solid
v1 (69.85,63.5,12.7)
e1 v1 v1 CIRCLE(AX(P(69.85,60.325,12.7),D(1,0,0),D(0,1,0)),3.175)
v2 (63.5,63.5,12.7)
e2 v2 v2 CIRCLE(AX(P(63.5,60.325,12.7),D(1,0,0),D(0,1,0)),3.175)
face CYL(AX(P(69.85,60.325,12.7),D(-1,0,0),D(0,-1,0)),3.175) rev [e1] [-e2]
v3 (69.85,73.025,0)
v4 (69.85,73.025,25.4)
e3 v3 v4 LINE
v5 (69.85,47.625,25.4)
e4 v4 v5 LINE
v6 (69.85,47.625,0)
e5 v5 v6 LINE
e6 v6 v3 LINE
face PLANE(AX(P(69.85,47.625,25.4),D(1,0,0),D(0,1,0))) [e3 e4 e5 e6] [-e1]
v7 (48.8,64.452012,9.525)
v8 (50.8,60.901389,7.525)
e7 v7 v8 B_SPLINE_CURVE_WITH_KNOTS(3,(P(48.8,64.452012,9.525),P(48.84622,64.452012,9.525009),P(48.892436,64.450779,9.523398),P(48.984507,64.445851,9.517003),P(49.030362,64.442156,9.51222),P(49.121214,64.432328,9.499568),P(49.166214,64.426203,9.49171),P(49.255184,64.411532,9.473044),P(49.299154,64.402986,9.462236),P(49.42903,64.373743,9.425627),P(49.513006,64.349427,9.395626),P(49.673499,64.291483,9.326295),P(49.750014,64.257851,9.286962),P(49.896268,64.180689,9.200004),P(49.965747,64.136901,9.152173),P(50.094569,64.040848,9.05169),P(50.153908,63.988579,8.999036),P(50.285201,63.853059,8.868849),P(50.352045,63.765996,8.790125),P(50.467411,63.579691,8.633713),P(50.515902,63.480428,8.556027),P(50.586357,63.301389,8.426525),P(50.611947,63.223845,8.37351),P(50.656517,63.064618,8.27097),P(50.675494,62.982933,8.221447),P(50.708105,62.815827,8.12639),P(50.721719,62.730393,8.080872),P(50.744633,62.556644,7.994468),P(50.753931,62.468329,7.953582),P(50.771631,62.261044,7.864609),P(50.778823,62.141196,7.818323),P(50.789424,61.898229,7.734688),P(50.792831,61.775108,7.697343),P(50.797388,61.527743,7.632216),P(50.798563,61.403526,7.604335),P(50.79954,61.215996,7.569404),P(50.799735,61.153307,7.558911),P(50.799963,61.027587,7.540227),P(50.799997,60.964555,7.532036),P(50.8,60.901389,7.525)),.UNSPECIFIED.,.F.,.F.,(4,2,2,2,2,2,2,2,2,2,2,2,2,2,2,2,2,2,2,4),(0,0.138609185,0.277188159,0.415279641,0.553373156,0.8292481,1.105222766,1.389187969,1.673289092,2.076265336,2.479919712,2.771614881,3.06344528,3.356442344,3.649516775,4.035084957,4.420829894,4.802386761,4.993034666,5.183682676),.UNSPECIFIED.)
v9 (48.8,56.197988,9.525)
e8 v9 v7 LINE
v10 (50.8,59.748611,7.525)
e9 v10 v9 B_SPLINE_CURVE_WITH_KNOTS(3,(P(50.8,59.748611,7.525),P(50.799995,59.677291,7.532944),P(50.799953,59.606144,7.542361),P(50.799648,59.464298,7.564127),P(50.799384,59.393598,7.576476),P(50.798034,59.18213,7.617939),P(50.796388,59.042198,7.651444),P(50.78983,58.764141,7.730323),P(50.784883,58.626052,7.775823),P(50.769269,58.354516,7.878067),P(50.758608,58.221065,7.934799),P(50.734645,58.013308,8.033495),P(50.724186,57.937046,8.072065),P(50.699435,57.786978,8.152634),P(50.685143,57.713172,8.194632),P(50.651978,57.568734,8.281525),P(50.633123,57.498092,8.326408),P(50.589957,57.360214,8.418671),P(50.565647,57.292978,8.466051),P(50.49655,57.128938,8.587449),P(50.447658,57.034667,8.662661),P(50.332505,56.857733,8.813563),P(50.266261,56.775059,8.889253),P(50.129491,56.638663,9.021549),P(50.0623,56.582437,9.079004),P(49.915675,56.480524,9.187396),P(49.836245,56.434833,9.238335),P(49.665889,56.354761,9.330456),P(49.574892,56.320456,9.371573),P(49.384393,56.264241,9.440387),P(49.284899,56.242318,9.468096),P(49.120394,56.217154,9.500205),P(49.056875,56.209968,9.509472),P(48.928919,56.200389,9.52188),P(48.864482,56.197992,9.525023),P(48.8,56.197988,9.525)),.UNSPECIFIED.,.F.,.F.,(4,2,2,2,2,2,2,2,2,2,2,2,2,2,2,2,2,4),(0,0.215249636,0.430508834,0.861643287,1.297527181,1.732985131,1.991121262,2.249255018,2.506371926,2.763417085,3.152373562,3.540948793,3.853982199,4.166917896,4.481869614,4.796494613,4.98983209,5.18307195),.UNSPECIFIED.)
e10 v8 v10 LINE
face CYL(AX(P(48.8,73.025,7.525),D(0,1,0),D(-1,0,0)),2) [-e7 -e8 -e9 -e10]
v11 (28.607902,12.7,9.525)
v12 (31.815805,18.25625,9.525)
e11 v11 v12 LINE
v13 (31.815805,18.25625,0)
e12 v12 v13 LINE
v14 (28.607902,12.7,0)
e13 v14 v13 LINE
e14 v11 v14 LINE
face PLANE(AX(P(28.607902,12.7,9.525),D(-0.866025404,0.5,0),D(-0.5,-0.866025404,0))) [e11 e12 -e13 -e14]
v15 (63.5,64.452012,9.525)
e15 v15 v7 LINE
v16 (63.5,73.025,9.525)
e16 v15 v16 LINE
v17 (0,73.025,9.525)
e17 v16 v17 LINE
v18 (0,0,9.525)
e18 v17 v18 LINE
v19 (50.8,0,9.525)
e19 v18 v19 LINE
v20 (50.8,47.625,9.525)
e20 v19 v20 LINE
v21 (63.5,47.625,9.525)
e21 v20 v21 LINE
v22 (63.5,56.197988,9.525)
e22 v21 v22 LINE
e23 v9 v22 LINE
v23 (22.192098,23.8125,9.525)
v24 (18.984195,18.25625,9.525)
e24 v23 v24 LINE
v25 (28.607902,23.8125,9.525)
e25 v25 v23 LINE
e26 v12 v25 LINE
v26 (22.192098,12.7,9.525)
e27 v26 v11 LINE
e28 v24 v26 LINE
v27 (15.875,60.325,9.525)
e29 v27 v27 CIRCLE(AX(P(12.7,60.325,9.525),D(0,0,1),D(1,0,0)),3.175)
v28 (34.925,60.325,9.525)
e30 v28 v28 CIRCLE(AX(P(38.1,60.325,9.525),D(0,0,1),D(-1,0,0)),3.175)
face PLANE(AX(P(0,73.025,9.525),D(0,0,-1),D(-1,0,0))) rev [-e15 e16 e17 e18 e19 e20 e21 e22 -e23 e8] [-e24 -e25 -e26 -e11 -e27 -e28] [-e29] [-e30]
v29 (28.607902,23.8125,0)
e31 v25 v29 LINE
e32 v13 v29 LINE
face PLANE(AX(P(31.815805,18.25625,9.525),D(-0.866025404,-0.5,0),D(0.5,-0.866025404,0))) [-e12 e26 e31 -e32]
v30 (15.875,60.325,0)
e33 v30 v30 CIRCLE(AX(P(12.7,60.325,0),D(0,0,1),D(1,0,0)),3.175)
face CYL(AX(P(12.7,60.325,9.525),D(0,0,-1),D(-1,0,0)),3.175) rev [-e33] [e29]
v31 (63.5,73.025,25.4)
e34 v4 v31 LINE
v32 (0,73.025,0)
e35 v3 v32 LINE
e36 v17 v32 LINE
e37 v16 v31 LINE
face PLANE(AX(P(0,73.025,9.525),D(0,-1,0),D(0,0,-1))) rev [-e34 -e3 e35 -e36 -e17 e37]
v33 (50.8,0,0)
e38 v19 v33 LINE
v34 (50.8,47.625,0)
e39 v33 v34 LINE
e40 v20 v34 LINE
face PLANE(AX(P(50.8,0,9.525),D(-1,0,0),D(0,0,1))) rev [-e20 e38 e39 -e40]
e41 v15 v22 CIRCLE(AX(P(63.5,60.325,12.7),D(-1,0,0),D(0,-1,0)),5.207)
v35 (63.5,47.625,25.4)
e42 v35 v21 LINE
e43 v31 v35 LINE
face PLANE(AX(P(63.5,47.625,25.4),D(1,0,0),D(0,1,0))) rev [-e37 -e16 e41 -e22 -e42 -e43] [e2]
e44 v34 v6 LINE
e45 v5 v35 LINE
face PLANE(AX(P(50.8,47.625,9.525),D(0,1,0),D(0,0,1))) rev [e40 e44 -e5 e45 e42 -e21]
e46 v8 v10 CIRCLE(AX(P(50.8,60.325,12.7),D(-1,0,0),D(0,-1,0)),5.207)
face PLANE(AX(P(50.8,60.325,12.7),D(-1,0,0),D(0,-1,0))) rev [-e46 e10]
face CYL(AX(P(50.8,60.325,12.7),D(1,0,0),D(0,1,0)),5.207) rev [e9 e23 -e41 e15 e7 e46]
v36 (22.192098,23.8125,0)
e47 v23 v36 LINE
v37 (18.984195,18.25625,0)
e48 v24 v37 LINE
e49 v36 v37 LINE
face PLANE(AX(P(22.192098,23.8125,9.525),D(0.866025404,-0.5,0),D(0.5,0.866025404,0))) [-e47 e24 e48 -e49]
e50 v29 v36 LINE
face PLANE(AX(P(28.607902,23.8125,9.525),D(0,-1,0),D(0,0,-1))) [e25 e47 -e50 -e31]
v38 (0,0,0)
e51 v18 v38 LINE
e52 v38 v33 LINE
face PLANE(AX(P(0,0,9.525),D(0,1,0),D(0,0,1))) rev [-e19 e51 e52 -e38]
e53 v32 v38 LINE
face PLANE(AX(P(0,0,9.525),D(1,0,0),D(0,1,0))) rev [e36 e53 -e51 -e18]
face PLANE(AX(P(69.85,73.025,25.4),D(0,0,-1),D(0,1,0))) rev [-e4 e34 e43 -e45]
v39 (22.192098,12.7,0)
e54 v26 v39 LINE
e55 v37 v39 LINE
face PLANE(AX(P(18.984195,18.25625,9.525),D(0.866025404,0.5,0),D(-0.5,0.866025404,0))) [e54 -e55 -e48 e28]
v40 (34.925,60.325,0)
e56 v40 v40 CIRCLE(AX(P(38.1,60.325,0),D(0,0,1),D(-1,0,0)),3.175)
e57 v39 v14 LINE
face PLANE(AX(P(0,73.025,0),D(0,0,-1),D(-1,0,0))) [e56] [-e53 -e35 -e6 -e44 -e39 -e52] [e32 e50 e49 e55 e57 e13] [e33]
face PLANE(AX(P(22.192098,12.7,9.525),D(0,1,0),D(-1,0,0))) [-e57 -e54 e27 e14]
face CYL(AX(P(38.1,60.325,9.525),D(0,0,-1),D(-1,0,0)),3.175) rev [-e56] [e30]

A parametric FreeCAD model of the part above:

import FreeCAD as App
import Part
import Sketcher
Q = App.Units.Quantity


def edges_at(feature, points):
    """Names of the edges that pass closest to the given points."""
    edges = feature.Shape.Edges
    near = lambda p: min(range(len(edges)), key=lambda i: edges[i].distToShape(Part.Vertex(*p))[0])
    return sorted({f"Edge{near(p) + 1}" for p in points})

doc = App.newDocument("Part")
body = doc.addObject("PartDesign::Body", "Body")

sketch1 = doc.addObject("Sketcher::SketchObject", "Sketch")
body.addObject(sketch1)
sketch1.AttachmentSupport = (doc.XY_Plane, [""])
sketch1.MapMode = "FlatFace"
sketch1.addGeometry([
    Part.LineSegment(App.Vector(0, 0, 0), App.Vector(50.8, 0, 0)),
    Part.LineSegment(App.Vector(50.8, 0, 0), App.Vector(50.8, 47.6, 0)),
    Part.LineSegment(App.Vector(50.8, 47.6, 0), App.Vector(63.5, 47.6, 0)),
    Part.LineSegment(App.Vector(63.5, 47.6, 0), App.Vector(63.5, 73, 0)),
    Part.LineSegment(App.Vector(63.5, 73, 0), App.Vector(0, 73, 0)),
    Part.LineSegment(App.Vector(0, 73, 0), App.Vector(0, 0, 0)),
    Part.LineSegment(App.Vector(28.6, 23.8, 0), App.Vector(31.8, 18.3, 0)),
    Part.LineSegment(App.Vector(31.8, 18.3, 0), App.Vector(28.6, 12.7, 0)),
    Part.LineSegment(App.Vector(28.6, 12.7, 0), App.Vector(22.2, 12.7, 0)),
    Part.LineSegment(App.Vector(22.2, 12.7, 0), App.Vector(19, 18.3, 0)),
    Part.LineSegment(App.Vector(19, 18.3, 0), App.Vector(22.2, 23.8, 0)),
    Part.LineSegment(App.Vector(22.2, 23.8, 0), App.Vector(28.6, 23.8, 0)),
    Part.Circle(App.Vector(12.7, 60.3, 0), App.Vector(0, 0, 1), 3.2),
    Part.Circle(App.Vector(38.1, 60.3, 0), App.Vector(0, 0, 1), 3.2),
], False)
sketch1.addConstraint([
    Sketcher.Constraint("Coincident", 0, 2, 1, 1),
    Sketcher.Constraint("Coincident", 1, 2, 2, 1),
    Sketcher.Constraint("Coincident", 2, 2, 3, 1),
    Sketcher.Constraint("Coincident", 3, 2, 4, 1),
    Sketcher.Constraint("Coincident", 4, 2, 5, 1),
    Sketcher.Constraint("Coincident", 5, 2, 0, 1),
    Sketcher.Constraint("Coincident", 6, 2, 7, 1),
    Sketcher.Constraint("Coincident", 7, 2, 8, 1),
    Sketcher.Constraint("Coincident", 8, 2, 9, 1),
    Sketcher.Constraint("Coincident", 9, 2, 10, 1),
    Sketcher.Constraint("Coincident", 10, 2, 11, 1),
    Sketcher.Constraint("Coincident", 11, 2, 6, 1),
    Sketcher.Constraint("Horizontal", 0),
    Sketcher.Constraint("Vertical", 1),
    Sketcher.Constraint("Horizontal", 2),
    Sketcher.Constraint("Vertical", 3),
    Sketcher.Constraint("Horizontal", 4),
    Sketcher.Constraint("Vertical", 5),
    Sketcher.Constraint("Horizontal", 8),
    Sketcher.Constraint("Horizontal", 11),
    Sketcher.Constraint("Coincident", 5, 2, -1, 1),
    Sketcher.Constraint("Equal", 12, 13),
    Sketcher.Constraint("Parallel", 6, 9),
    Sketcher.Constraint("Parallel", 7, 10),
    Sketcher.Constraint("Horizontal", 12, 3, 13, 3),
    Sketcher.Constraint("Horizontal", 6, 2, 9, 2),
    Sketcher.Constraint("Vertical", 8, 2, 10, 2),
    Sketcher.Constraint("Vertical", 7, 2, 11, 2),
    Sketcher.Constraint("Diameter", 12, Q("0.25 in")),
    Sketcher.Constraint("DistanceX", 0, 1, 0, 2, Q("2 in")),
    Sketcher.Constraint("DistanceY", 3, 1, 3, 2, Q("1 in")),
    Sketcher.Constraint("DistanceX", 2, 1, 2, 2, Q("0.5 in")),
    Sketcher.Constraint("Angle", 6, Q("-60 deg")),
    Sketcher.Constraint("DistanceX", 12, 3, 13, 3, Q("1 in")),
    Sketcher.Constraint("DistanceX", 13, 3, 2, 2, Q("1 in")),
    Sketcher.Constraint("DistanceY", -1, 1, 7, 2, Q("0.5 in")),
    Sketcher.Constraint("DistanceY", 1, 2, 13, 3, Q("0.5 in")),
    Sketcher.Constraint("DistanceY", 1, 1, 1, 2, Q("1.875 in")),
    Sketcher.Constraint("DistanceY", -1, 1, 6, 2, Q("0.71875 in")),
    Sketcher.Constraint("DistanceX", 8, 2, 8, 1, Q("6.415805 mm")),
    Sketcher.Constraint("DistanceX", -1, 1, 6, 2, Q("31.815805 mm")),
])
pad1 = doc.addObject("PartDesign::Pad", "Pad")
body.addObject(pad1)
pad1.Profile = sketch1
pad1.Length = Q("0.375 in")

sketch2 = doc.addObject("Sketcher::SketchObject", "Sketch001")
body.addObject(sketch2)
sketch2.AttachmentSupport = (doc.YZ_Plane, [""])
sketch2.MapMode = "FlatFace"
sketch2.AttachmentOffset = App.Placement(App.Vector(0, 0, 2.5 * 25.4), App.Rotation())
sketch2.addGeometry([
    Part.LineSegment(App.Vector(73, 25.4, 0), App.Vector(47.6, 25.4, 0)),
    Part.LineSegment(App.Vector(47.6, 25.4, 0), App.Vector(47.6, 0, 0)),
    Part.LineSegment(App.Vector(47.6, 0, 0), App.Vector(73, 0, 0)),
    Part.LineSegment(App.Vector(73, 0, 0), App.Vector(73, 25.4, 0)),
    Part.Circle(App.Vector(60.3, 12.7, 0), App.Vector(0, 0, 1), 3.2),
], False)
sketch2.addConstraint([
    Sketcher.Constraint("Coincident", 0, 2, 1, 1),
    Sketcher.Constraint("Coincident", 1, 2, 2, 1),
    Sketcher.Constraint("Coincident", 2, 2, 3, 1),
    Sketcher.Constraint("Coincident", 3, 2, 0, 1),
    Sketcher.Constraint("Horizontal", 0),
    Sketcher.Constraint("Vertical", 1),
    Sketcher.Constraint("Horizontal", 2),
    Sketcher.Constraint("Vertical", 3),
    Sketcher.Constraint("PointOnObject", 1, 2, -1),
    Sketcher.Constraint("Equal", 2, 1),
    Sketcher.Constraint("Diameter", 4, Q("0.25 in")),
    Sketcher.Constraint("DistanceX", 0, 2, 0, 1, Q("1 in")),
    Sketcher.Constraint("DistanceY", -1, 1, 4, 3, Q("0.5 in")),
    Sketcher.Constraint("DistanceX", 0, 2, 4, 3, Q("0.5 in")),
    Sketcher.Constraint("DistanceX", -1, 1, 4, 3, Q("2.375 in")),
])
pad2 = doc.addObject("PartDesign::Pad", "Pad001")
body.addObject(pad2)
pad2.Profile = sketch2
pad2.Length = Q("0.25 in")

sketch3 = doc.addObject("Sketcher::SketchObject", "Sketch002")
body.addObject(sketch3)
sketch3.AttachmentSupport = (doc.YZ_Plane, [""])
sketch3.MapMode = "FlatFace"
sketch3.AttachmentOffset = App.Placement(App.Vector(0, 0, 2.5 * 25.4), App.Rotation())
sketch3.addGeometry(Part.Circle(App.Vector(60, 13, 0), App.Vector(0, 0, 1), 5), False)
sketch3.addConstraint([
    Sketcher.Constraint("Diameter", 0, Q("0.41 in")),
    Sketcher.Constraint("DistanceY", -1, 1, 0, 3, Q("0.5 in")),
    Sketcher.Constraint("DistanceX", -1, 1, 0, 3, Q("2.375 in")),
])
pocket1 = doc.addObject("PartDesign::Pocket", "Pocket")
body.addObject(pocket1)
pocket1.Profile = sketch3
pocket1.Length = Q("0.5 in")
doc.recompute()

fillet = doc.addObject("PartDesign::Fillet", "Fillet")
body.addObject(fillet)
fillet.Base = (pocket1, edges_at(pocket1, [(50.8, 60.325, 9.525)]))
fillet.Radius = 2

doc.recompute()
